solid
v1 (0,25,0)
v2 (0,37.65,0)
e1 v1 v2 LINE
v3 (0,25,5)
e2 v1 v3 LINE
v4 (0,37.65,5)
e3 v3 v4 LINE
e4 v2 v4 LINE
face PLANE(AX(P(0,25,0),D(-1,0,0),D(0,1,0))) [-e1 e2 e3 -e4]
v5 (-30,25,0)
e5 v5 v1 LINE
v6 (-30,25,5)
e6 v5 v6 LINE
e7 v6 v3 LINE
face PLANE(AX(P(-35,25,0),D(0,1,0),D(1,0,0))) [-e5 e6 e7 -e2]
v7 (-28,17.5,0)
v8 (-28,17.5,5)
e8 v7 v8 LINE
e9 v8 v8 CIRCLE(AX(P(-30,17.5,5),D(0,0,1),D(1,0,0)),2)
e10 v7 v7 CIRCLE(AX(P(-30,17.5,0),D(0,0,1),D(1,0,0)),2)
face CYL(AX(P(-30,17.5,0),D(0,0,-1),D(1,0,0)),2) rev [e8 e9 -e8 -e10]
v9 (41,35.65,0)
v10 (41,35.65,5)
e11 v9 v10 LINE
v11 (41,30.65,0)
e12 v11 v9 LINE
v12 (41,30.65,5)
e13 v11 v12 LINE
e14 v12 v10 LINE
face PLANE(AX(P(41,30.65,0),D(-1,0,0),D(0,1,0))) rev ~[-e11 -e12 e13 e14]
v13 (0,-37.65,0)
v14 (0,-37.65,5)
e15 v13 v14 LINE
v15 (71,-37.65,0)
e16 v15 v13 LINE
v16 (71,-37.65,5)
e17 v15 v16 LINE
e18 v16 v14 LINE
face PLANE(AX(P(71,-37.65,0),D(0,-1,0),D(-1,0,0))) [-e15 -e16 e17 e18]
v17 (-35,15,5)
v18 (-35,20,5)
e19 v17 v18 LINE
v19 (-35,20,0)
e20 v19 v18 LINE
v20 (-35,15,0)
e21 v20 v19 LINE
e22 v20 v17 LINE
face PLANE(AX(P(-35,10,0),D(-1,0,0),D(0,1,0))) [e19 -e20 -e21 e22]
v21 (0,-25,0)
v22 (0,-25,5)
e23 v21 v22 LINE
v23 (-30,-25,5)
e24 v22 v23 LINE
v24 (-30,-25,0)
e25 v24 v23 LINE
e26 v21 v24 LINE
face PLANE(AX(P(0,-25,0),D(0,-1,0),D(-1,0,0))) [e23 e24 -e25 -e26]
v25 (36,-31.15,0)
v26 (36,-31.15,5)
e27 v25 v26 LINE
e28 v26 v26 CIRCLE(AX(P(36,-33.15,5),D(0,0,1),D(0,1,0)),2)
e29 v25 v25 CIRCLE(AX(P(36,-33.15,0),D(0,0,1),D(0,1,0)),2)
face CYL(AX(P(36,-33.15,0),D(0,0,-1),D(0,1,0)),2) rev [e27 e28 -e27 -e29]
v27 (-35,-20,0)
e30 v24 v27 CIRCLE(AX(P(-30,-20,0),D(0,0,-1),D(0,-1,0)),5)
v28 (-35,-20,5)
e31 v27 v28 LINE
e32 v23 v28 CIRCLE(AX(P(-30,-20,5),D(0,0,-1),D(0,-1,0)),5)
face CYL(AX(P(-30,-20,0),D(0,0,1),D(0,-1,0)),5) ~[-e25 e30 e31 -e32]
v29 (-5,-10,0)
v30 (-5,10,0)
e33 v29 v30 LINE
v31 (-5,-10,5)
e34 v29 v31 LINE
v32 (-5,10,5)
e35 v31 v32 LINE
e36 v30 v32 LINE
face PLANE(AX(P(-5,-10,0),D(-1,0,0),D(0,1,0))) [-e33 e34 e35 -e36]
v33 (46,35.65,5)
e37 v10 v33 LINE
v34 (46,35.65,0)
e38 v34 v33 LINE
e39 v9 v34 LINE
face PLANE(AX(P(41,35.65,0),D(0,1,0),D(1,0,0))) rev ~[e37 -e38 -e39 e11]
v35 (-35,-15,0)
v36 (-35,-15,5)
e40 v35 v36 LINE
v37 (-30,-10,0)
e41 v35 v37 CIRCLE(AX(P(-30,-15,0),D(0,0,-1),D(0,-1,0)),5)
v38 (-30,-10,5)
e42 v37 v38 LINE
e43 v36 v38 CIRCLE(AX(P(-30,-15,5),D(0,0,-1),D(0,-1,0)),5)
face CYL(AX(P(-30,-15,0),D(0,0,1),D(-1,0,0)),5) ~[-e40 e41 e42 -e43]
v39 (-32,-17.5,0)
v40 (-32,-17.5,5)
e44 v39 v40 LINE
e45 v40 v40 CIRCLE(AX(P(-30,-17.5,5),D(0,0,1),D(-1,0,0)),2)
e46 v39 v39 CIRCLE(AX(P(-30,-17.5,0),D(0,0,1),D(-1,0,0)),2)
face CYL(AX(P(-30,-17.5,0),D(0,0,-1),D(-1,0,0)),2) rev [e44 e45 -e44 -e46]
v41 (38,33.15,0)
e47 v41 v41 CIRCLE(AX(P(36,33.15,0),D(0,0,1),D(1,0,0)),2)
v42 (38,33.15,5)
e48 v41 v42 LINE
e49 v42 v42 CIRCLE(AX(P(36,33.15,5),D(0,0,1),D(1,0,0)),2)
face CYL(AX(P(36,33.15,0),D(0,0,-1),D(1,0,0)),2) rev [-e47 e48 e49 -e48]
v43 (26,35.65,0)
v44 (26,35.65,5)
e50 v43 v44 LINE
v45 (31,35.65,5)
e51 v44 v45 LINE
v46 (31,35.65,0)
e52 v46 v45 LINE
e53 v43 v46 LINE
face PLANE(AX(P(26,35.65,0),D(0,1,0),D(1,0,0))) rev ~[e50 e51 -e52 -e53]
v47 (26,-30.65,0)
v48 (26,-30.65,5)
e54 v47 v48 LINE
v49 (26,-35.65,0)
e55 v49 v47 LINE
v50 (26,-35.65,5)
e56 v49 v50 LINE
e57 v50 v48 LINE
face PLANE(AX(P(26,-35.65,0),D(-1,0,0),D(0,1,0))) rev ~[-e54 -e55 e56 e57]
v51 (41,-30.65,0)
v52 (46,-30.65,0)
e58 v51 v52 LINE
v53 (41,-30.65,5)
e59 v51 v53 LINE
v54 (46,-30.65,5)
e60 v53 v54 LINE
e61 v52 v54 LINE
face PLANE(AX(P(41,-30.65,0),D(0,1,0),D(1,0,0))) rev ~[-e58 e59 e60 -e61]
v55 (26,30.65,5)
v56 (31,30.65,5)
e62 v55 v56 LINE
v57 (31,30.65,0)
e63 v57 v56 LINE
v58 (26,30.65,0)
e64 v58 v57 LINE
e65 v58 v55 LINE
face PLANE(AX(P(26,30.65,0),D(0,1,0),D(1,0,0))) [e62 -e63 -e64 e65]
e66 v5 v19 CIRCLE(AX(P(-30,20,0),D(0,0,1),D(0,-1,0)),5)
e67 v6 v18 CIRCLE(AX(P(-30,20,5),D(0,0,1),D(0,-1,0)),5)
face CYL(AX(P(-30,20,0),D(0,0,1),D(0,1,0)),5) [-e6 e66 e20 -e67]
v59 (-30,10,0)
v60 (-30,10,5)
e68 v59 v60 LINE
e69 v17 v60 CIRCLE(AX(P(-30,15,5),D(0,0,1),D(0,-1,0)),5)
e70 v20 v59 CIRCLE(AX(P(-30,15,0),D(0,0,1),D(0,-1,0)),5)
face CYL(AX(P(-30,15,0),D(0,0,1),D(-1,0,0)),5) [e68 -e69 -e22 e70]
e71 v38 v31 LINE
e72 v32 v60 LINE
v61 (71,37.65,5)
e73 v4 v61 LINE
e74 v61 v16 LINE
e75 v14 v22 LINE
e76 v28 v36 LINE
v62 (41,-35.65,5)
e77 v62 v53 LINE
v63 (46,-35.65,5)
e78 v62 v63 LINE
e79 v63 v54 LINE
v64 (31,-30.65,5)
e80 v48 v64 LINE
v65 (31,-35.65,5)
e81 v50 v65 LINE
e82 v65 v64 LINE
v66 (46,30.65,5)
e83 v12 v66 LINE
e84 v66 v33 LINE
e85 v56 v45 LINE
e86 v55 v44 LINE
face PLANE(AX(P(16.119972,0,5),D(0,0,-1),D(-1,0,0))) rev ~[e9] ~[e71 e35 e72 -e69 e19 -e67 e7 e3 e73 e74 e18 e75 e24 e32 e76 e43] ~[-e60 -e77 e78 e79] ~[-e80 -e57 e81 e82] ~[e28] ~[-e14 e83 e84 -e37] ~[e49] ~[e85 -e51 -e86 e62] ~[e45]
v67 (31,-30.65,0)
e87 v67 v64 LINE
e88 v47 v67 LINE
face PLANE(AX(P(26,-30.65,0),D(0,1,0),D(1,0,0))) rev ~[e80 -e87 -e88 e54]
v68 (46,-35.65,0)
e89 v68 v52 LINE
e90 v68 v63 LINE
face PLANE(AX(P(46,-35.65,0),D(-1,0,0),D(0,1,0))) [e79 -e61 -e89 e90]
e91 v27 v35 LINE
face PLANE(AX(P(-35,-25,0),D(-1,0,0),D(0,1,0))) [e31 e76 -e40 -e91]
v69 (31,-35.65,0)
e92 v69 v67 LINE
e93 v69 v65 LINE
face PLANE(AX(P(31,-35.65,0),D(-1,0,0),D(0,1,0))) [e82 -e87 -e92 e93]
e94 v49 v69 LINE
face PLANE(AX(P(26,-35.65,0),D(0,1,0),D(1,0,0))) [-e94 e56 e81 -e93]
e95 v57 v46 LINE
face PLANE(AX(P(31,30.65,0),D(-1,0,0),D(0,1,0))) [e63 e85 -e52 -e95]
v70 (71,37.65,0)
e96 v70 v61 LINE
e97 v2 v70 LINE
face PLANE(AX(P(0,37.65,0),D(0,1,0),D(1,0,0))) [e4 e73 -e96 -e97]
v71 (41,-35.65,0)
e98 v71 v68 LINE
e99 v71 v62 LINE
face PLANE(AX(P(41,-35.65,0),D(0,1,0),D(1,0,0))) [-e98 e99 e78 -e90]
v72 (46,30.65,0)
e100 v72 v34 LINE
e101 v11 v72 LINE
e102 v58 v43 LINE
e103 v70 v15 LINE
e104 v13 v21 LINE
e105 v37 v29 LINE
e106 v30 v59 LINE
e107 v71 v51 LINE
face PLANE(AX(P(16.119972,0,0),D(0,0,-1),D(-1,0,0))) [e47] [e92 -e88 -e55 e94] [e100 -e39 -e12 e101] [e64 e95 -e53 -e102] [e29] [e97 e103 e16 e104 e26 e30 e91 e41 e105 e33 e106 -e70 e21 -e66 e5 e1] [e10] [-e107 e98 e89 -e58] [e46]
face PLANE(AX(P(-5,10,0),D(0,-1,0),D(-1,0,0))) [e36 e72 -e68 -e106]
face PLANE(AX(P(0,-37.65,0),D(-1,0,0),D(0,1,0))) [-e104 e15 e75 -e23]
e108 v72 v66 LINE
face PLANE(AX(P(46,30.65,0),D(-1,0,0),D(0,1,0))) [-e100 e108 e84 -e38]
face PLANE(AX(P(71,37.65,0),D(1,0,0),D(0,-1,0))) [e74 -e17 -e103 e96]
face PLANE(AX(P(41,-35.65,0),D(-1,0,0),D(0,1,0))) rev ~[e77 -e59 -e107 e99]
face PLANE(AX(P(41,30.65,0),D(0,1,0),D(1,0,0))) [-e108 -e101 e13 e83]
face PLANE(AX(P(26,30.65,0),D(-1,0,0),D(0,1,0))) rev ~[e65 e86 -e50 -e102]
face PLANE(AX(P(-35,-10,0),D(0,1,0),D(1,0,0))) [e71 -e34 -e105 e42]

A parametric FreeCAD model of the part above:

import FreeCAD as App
import Part
import Sketcher
from FreeCAD import Vector
Q = App.Units.Quantity


def edges_at(feature, points):
    """Names of the edges that pass closest to the given points."""
    edges = feature.Shape.Edges
    near = lambda p: min(range(len(edges)), key=lambda i: edges[i].distToShape(Part.Vertex(*p))[0])
    return sorted({f"Edge{near(p) + 1}" for p in points})


def add_polygon(sketch, points):
    """Adds a closed chain of lines whose ends are joined by coincident constraints."""
    first, n = sketch.GeometryCount, len(points)
    for a, b in zip(points, points[1:] + points[:1]):
        sketch.addGeometry(Part.LineSegment(App.Vector(*a, 0), App.Vector(*b, 0)), False)
    for i in range(n):
        sketch.addConstraint(Sketcher.Constraint("Coincident", first + i, 2, first + (i + 1) % n, 1))

doc = App.newDocument("Part")
body = doc.addObject("PartDesign::Body", "Body")

sketch1 = body.newObject("Sketcher::SketchObject", "Sketch")
sketch1.AttachmentSupport = (doc.getObject("XY_Plane"), [""])
sketch1.MapMode = "FlatFace"
add_polygon(sketch1, [(71, 37.65), (0, 37.65), (0, 25), (-35, 25), (-35, 10), (-5, 10), (-5, -10), (-35, -10), (-35, -25), (0, -25), (0, -37.65), (71, -37.65)])
add_polygon(sketch1, [(41, -35.65), (41, -30.65), (46, -30.65), (46, -35.65)])
sketch1.addGeometry(Part.Circle(Vector(36, -33.15, 0), Vector(0, 0, 1), 2), False)
add_polygon(sketch1, [(26, -35.65), (26, -30.65), (31, -30.65), (31, -35.65)])
sketch1.addGeometry(Part.Circle(Vector(-30, -17.5, 0), Vector(0, 0, 1), 2), False)
add_polygon(sketch1, [(41, 30.65), (41, 35.65), (46, 35.65), (46, 30.65)])
sketch1.addGeometry(Part.Circle(Vector(36, 33.15, 0), Vector(0, 0, 1), 2), False)
add_polygon(sketch1, [(26, 30.65), (26, 35.65), (31, 35.65), (31, 30.65)])
sketch1.addGeometry(Part.Circle(Vector(-30, 17.5, 0), Vector(0, 0, 1), 2), False)
sketch1.addConstraint([
    Sketcher.Constraint("Horizontal", 0),
    Sketcher.Constraint("Vertical", 1),
    Sketcher.Constraint("Horizontal", 2),
    Sketcher.Constraint("Vertical", 3),
    Sketcher.Constraint("Horizontal", 4),
    Sketcher.Constraint("Vertical", 5),
    Sketcher.Constraint("Horizontal", 6),
    Sketcher.Constraint("Vertical", 7),
    Sketcher.Constraint("Horizontal", 8),
    Sketcher.Constraint("Vertical", 9),
    Sketcher.Constraint("Horizontal", 10),
    Sketcher.Constraint("Vertical", 11),
    Sketcher.Constraint("Vertical", 12),
    Sketcher.Constraint("Horizontal", 13),
    Sketcher.Constraint("Vertical", 14),
    Sketcher.Constraint("Horizontal", 15),
    Sketcher.Constraint("Vertical", 17),
    Sketcher.Constraint("Horizontal", 18),
    Sketcher.Constraint("Vertical", 19),
    Sketcher.Constraint("Horizontal", 20),
    Sketcher.Constraint("Vertical", 22),
    Sketcher.Constraint("Horizontal", 23),
    Sketcher.Constraint("Vertical", 24),
    Sketcher.Constraint("Horizontal", 25),
    Sketcher.Constraint("Vertical", 27),
    Sketcher.Constraint("Horizontal", 28),
    Sketcher.Constraint("Vertical", 29),
    Sketcher.Constraint("Horizontal", 30),
    Sketcher.Constraint("Equal", 16, 21),
    Sketcher.Constraint("Equal", 21, 26),
    Sketcher.Constraint("Equal", 26, 31),
    Sketcher.Constraint("Symmetric", 1, 2, 8, 2, -1, 1),
    Sketcher.Constraint("Symmetric", 16, 3, 26, 3, -1),
    Sketcher.Constraint("Symmetric", 21, 3, 31, 3, -1),
    Sketcher.Constraint("Symmetric", 3, 2, 6, 2, -1),
    Sketcher.Constraint("Symmetric", 0, 2, 9, 2, -1),
    Sketcher.Constraint("Symmetric", 15, 2, 22, 2, -1),
    Sketcher.Constraint("Symmetric", 13, 2, 24, 2, -1),
    Sketcher.Constraint("Symmetric", 20, 2, 27, 2, -1),
    Sketcher.Constraint("Symmetric", 18, 2, 29, 2, -1),
    Sketcher.Constraint("Horizontal", 13, 2, 17, 2),
    Sketcher.Constraint("Horizontal", 15, 2, 19, 2),
    Sketcher.Constraint("Equal", 15, 18),
    Sketcher.Constraint("Equal", 30, 12),
    Sketcher.Constraint("Diameter", 16, Q("4 mm")),
    Sketcher.Constraint("DistanceX", 0, 2, 0, 1, Q("71 mm")),
    Sketcher.Constraint("DistanceX", 2, 2, 2, 1, Q("35 mm")),
    Sketcher.Constraint("DistanceX", 4, 1, 4, 2, Q("30 mm")),
    Sketcher.Constraint("DistanceX", 13, 1, 13, 2, Q("5 mm")),
    Sketcher.Constraint("DistanceY", 3, 2, 3, 1, Q("15 mm")),
    Sketcher.Constraint("DistanceY", 5, 2, 5, 1, Q("20 mm")),
    Sketcher.Constraint("DistanceY", 11, 1, 11, 2, Q("75.3 mm")),
    Sketcher.Constraint("DistanceX", -1, 1, 16, 3, Q("36 mm")),
    Sketcher.Constraint("DistanceX", 21, 3, -1, 1, Q("30 mm")),
    Sketcher.Constraint("DistanceX", -1, 1, 12, 2, Q("41 mm")),
    Sketcher.Constraint("DistanceX", -1, 1, 17, 2, Q("26 mm")),
    Sketcher.Constraint("DistanceY", 21, 3, 31, 3, Q("35 mm")),
    Sketcher.Constraint("DistanceY", 10, 2, 12, 2, Q("7 mm")),
    Sketcher.Constraint("DistanceY", 16, 3, 26, 3, Q("66.3 mm")),
])
pad1 = body.newObject("PartDesign::Pad", "Pad")
pad1.Profile = sketch1
pad1.Length = 5
doc.recompute()

fillet = body.newObject("PartDesign::Fillet", "Fillet")
fillet.Base = (pad1, edges_at(pad1, [
    (-35, -10, 2.5),
    (-35, 10, 2.5),
    (-35, 25, 2.5),
    (-35, -25, 2.5),
]))
fillet.Radius = 5

doc.recompute()
